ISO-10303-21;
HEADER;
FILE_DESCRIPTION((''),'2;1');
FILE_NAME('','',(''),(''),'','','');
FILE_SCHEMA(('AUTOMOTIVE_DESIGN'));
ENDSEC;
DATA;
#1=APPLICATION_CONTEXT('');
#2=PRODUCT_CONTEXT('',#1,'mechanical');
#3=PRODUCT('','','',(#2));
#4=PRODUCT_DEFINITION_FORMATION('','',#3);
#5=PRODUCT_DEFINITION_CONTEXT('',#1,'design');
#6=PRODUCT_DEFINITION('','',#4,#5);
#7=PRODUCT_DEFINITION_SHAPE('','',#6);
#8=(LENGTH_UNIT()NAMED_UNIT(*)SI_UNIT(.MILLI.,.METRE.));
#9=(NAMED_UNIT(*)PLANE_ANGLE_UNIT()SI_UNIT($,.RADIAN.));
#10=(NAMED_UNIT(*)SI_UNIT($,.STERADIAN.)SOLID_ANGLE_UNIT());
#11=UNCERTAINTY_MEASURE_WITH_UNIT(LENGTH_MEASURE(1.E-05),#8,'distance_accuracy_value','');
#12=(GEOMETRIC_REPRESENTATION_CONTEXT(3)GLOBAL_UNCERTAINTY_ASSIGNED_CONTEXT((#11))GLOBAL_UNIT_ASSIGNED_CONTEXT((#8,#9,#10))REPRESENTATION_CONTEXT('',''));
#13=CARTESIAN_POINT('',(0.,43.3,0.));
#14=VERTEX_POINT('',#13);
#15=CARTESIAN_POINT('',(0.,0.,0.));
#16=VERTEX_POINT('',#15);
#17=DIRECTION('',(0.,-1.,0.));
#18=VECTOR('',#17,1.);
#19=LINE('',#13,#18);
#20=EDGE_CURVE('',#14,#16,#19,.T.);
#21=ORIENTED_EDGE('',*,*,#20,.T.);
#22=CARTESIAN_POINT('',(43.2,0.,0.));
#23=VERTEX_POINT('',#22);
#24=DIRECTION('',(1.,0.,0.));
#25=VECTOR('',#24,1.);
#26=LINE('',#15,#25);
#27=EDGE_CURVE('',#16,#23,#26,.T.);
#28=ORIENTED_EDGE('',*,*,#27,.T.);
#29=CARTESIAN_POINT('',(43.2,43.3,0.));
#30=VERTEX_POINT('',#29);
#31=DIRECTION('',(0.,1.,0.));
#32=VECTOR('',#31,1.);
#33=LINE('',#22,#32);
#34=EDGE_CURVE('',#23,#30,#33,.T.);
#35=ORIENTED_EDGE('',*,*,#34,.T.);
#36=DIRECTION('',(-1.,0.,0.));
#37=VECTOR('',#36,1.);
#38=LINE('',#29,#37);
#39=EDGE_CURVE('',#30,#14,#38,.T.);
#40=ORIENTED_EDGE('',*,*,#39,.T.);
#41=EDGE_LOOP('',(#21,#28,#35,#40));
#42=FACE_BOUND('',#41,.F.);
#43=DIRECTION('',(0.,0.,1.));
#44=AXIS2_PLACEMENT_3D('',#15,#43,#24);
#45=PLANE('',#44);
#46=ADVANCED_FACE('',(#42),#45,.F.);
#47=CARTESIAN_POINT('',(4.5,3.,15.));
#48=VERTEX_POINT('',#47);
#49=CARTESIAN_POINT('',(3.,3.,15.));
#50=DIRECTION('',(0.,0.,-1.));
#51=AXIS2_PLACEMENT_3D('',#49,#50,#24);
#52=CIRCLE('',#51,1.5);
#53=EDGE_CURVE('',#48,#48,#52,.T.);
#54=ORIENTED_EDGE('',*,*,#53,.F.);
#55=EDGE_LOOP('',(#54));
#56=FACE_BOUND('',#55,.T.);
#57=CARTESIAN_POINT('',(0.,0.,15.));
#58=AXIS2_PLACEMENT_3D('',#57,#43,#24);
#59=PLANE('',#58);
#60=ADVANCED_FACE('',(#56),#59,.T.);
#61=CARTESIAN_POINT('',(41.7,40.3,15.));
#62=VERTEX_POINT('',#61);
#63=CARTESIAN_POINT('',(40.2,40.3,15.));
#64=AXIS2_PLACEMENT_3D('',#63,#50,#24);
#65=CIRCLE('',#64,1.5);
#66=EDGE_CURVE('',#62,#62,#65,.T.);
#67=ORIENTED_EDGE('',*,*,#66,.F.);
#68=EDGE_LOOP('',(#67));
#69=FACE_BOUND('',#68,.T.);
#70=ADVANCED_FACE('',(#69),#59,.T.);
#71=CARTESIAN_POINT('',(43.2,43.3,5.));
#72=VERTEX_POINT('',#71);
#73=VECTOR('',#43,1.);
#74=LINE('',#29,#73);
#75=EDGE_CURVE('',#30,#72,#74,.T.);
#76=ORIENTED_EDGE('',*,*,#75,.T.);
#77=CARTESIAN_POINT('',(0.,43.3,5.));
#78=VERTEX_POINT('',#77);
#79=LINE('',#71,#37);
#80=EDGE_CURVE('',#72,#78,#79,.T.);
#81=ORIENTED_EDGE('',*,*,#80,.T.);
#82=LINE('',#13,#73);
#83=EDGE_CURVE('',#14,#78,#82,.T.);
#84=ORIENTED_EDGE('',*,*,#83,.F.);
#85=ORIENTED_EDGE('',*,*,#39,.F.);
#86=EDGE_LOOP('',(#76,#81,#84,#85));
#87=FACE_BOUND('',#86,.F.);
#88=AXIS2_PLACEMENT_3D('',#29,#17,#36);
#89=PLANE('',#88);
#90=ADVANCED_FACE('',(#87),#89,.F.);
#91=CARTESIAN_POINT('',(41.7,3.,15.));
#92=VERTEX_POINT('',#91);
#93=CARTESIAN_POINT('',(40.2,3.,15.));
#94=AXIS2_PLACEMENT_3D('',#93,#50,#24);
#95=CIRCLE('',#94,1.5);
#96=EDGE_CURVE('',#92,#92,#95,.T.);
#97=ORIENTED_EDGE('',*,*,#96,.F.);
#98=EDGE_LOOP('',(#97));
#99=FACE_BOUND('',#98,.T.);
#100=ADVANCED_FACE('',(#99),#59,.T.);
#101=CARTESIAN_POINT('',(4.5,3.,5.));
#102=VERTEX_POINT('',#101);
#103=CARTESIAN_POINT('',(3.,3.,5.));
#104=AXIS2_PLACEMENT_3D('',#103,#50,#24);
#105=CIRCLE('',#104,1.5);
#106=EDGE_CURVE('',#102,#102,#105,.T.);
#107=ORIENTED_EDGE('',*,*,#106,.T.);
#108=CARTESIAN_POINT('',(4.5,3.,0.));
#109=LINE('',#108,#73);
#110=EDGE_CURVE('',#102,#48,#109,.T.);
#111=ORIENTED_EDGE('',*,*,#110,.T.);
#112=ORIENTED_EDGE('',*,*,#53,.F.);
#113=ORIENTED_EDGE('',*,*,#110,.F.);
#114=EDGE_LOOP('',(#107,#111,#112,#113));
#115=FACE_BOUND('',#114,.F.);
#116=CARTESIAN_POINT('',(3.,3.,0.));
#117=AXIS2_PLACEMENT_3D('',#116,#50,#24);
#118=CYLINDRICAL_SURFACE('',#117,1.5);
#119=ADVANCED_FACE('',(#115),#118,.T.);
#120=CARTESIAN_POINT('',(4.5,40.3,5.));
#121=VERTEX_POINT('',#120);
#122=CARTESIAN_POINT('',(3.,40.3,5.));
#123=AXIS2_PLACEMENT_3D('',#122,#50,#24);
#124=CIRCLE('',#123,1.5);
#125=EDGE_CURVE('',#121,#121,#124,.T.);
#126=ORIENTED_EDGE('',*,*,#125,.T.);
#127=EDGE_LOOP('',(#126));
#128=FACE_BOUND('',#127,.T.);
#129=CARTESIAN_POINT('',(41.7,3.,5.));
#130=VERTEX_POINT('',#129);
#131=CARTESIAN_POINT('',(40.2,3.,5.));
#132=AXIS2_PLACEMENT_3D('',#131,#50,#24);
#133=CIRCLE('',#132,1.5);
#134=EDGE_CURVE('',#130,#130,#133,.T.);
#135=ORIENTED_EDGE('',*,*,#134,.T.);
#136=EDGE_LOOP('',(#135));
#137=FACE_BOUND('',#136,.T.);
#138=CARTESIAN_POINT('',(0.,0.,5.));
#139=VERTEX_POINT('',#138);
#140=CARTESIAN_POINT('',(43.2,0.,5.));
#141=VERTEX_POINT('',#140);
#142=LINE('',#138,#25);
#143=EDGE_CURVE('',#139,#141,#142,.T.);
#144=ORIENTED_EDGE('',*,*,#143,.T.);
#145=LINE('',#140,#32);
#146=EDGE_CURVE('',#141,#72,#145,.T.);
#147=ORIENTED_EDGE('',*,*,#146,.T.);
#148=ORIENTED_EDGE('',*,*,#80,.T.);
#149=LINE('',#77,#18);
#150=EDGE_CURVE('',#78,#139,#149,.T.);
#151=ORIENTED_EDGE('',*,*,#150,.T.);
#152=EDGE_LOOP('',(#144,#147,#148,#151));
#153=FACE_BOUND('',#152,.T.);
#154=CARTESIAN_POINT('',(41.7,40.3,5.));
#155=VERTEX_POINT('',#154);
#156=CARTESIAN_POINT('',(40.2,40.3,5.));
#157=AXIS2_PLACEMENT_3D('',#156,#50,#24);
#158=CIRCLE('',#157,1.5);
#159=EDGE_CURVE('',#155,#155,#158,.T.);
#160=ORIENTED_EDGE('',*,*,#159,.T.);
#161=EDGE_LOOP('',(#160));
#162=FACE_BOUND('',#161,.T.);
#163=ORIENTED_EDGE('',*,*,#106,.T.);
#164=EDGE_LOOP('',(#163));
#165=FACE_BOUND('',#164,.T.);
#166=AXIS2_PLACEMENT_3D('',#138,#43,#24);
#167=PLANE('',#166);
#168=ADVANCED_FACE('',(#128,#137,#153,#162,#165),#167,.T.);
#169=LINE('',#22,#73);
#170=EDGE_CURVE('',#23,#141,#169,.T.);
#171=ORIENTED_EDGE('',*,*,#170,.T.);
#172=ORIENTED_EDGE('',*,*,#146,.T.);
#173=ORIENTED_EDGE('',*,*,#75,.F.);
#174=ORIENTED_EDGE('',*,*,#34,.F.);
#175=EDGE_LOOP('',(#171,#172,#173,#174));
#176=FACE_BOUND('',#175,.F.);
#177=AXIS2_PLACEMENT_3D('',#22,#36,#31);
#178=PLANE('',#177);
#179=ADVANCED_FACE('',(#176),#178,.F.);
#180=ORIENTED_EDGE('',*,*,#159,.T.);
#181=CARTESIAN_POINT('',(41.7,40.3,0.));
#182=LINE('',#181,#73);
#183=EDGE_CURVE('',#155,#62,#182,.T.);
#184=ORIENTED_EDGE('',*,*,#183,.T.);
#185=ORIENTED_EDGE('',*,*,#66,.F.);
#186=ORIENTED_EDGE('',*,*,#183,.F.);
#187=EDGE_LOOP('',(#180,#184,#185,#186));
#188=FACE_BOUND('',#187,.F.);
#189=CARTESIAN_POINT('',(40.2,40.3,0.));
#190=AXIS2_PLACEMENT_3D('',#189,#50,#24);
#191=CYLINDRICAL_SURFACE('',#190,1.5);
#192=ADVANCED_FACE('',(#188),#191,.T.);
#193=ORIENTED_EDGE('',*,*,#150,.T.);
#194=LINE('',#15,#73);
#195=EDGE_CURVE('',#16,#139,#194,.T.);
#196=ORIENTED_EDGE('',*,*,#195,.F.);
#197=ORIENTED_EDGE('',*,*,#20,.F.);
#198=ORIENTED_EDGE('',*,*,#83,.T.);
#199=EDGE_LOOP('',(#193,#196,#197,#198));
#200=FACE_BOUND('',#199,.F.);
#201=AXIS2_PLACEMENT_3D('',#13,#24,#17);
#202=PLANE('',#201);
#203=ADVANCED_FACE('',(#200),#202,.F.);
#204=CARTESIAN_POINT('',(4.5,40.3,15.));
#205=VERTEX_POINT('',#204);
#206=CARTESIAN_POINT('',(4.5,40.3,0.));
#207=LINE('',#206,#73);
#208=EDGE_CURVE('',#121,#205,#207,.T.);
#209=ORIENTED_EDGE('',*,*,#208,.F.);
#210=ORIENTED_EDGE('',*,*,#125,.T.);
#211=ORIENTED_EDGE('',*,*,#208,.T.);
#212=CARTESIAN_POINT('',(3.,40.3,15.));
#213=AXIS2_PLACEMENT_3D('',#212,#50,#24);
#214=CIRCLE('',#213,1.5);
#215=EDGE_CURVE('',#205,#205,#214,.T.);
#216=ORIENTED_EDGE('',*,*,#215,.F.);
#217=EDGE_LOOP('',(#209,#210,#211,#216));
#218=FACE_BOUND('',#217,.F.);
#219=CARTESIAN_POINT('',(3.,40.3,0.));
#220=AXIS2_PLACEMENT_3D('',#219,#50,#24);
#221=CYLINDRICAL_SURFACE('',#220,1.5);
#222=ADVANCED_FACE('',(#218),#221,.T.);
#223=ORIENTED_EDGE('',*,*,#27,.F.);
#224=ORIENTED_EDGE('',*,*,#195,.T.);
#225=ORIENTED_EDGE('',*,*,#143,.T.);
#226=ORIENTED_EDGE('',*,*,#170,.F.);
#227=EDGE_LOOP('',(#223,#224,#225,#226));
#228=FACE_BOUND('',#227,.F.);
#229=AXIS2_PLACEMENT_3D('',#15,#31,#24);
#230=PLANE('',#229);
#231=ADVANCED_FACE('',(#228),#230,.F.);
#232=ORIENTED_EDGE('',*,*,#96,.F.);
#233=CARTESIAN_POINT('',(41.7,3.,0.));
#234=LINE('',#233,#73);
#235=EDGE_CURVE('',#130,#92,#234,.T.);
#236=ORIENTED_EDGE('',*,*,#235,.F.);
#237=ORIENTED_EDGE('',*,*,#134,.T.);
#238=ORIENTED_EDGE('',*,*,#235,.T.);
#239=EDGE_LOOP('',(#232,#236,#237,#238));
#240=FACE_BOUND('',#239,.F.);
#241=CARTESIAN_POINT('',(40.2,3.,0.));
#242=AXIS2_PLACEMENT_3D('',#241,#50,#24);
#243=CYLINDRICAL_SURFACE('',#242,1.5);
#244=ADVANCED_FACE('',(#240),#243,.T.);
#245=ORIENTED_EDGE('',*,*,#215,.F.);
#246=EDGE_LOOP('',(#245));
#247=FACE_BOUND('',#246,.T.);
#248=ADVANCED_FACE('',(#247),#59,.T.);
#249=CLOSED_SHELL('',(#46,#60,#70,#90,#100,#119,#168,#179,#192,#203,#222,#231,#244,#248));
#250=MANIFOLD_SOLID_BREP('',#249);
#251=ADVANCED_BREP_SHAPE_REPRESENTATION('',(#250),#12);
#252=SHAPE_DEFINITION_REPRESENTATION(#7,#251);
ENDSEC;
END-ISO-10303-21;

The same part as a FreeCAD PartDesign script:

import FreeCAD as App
import Part
import Sketcher
from FreeCAD import Vector


def add_polygon(sketch, points):
    """Adds a closed chain of lines whose ends are joined by coincident constraints."""
    first, n = sketch.GeometryCount, len(points)
    for a, b in zip(points, points[1:] + points[:1]):
        sketch.addGeometry(Part.LineSegment(App.Vector(*a, 0), App.Vector(*b, 0)), False)
    for i in range(n):
        sketch.addConstraint(Sketcher.Constraint("Coincident", first + i, 2, first + (i + 1) % n, 1))

doc = App.newDocument("Part")
body = doc.addObject("PartDesign::Body", "Body")
body.AllowCompound = True

sketch1 = body.newObject("Sketcher::SketchObject", "Sketch")
sketch1.AttachmentSupport = (doc.getObject("XY_Plane"), [""])
sketch1.MapMode = "FlatFace"
sketch1.addGeometry([
    Part.Circle(Vector(3, 3, 0), Vector(0, 0, 1), 1.5),
    Part.Circle(Vector(40.2, 3, 0), Vector(0, 0, 1), 1.5),
    Part.Circle(Vector(3, 40.3, 0), Vector(0, 0, 1), 1.5),
    Part.Circle(Vector(40.2, 40.3, 0), Vector(0, 0, 1), 1.5),
], False)
sketch1.addConstraint([
    Sketcher.Constraint("Equal", 0, 1),
    Sketcher.Constraint("Equal", 1, 2),
    Sketcher.Constraint("Equal", 2, 3),
    Sketcher.Constraint("Horizontal", 0, 3, 1, 3),
    Sketcher.Constraint("Horizontal", 2, 3, 3, 3),
    Sketcher.Constraint("Vertical", 0, 3, 2, 3),
    Sketcher.Constraint("Vertical", 1, 3, 3, 3),
    Sketcher.Constraint("Diameter", 0, 3.0),
    Sketcher.Constraint("DistanceX", -1, 1, 0, 3, 3.0),
    Sketcher.Constraint("DistanceY", -1, 1, 0, 3, 3.0),
    Sketcher.Constraint("DistanceX", -1, 1, 1, 3, 40.2),
    Sketcher.Constraint("DistanceY", -1, 1, 2, 3, 40.3),
])
pad1 = body.newObject("PartDesign::Pad", "Pad")
pad1.Profile = sketch1
pad1.Length = 15

sketch2 = body.newObject("Sketcher::SketchObject", "Sketch001")
sketch2.AttachmentSupport = (doc.getObject("XY_Plane"), [""])
sketch2.MapMode = "FlatFace"
add_polygon(sketch2, [(0, 43.3), (0, 0), (43.2, 0), (43.2, 43.3)])
sketch2.addConstraint([
    Sketcher.Constraint("Vertical", 0),
    Sketcher.Constraint("Horizontal", 1),
    Sketcher.Constraint("Vertical", 2),
    Sketcher.Constraint("Horizontal", 3),
    Sketcher.Constraint("Coincident", 0, 2, -1, 1),
    Sketcher.Constraint("DistanceX", 1, 1, 1, 2, 43.2),
    Sketcher.Constraint("DistanceY", 0, 2, 0, 1, 43.3),
])
pad2 = body.newObject("PartDesign::Pad", "Pad001")
pad2.Profile = sketch2
pad2.Length = 5

doc.recompute()
